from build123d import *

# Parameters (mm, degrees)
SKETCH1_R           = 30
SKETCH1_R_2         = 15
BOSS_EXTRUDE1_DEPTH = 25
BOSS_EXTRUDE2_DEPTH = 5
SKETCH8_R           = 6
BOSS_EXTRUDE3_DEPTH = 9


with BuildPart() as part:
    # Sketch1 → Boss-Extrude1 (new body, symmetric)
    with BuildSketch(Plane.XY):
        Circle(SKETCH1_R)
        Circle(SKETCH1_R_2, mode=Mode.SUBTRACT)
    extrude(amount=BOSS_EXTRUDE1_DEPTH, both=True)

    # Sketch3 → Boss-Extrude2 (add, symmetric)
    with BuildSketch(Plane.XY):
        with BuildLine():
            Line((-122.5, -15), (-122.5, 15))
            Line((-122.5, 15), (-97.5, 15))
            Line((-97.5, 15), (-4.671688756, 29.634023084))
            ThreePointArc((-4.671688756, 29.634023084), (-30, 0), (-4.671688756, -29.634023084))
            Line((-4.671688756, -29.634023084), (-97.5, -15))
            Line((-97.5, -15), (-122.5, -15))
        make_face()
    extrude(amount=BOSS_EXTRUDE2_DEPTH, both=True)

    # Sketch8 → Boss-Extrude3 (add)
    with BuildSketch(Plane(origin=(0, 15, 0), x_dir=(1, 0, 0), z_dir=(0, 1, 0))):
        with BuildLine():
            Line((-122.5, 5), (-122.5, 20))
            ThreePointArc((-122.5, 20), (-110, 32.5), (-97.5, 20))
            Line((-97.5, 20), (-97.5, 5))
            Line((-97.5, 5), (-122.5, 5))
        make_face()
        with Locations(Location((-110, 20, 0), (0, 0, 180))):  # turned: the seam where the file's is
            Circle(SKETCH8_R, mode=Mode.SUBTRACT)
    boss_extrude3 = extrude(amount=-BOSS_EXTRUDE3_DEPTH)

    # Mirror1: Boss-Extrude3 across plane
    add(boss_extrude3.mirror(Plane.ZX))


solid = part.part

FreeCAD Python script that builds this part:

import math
import FreeCAD as App
import Part
import Sketcher

V = App.Vector
Q = App.Units.Quantity

doc = App.newDocument("Part")
body = doc.addObject("PartDesign::Body", "Body")

# Sketch on XY plane
sketch1 = body.newObject("Sketcher::SketchObject", "Sketch")
sketch1.AttachmentSupport = (doc.getObject("XY_Plane"), [""])
sketch1.MapMode = "FlatFace"
sketch1.addGeometry([
    Part.Circle(V(0, 0, 0), V(0, 0, 1), 30),
    Part.Circle(V(0, 0, 0), V(0, 0, 1), 15),
], False)
sketch1.addConstraint([
    Sketcher.Constraint("Coincident", 0, 3, -1, 1),
    Sketcher.Constraint("Coincident", 1, 3, -1, 1),
    Sketcher.Constraint("Diameter", 0, Q("60 mm")),
    Sketcher.Constraint("Diameter", 1, Q("30 mm")),
])
pad1 = body.newObject("PartDesign::Pad", "Pad")
pad1.Profile = sketch1
pad1.Length = 50
pad1.Midplane = True

# Sketch on XY plane
sketch2 = body.newObject("Sketcher::SketchObject", "Sketch001")
sketch2.AttachmentSupport = (doc.getObject("XY_Plane"), [""])
sketch2.MapMode = "FlatFace"
sketch2.addGeometry([
    Part.LineSegment(V(-122.5, 15, 0), V(-122.5, -15, 0)),  # 0
    Part.LineSegment(V(-122.5, -15, 0), V(-97.5, -15, 0)),  # 1
    Part.LineSegment(V(-97.5, -15, 0), V(-4.671689, -29.634023, 0)),  # 2
    Part.ArcOfCircle(Part.Circle(V(0, 0, 0), V(0, 0, 1), 30), math.radians(98.958728), math.radians(261.041272)),  # 3
    Part.LineSegment(V(-4.671689, 29.634023, 0), V(-97.5, 15, 0)),  # 4
    Part.LineSegment(V(-97.5, 15, 0), V(-122.5, 15, 0)),  # 5
], False)
sketch2.addConstraint([
    Sketcher.Constraint("Coincident", 0, 2, 1, 1),
    Sketcher.Constraint("Coincident", 1, 2, 2, 1),
    Sketcher.Constraint("Tangent", 2, 2, 3, 2),
    Sketcher.Constraint("Tangent", 3, 1, 4, 1),
    Sketcher.Constraint("Coincident", 4, 2, 5, 1),
    Sketcher.Constraint("Coincident", 5, 2, 0, 1),
    Sketcher.Constraint("Vertical", 0),
    Sketcher.Constraint("Horizontal", 1),
    Sketcher.Constraint("Horizontal", 5),
    Sketcher.Constraint("Coincident", 3, 3, -1, 1),
    Sketcher.Constraint("Symmetric", 1, 2, 4, 2, -1),
    Sketcher.Constraint("Radius", 3, Q("30 mm")),
    Sketcher.Constraint("DistanceX", 1, 1, 1, 2, Q("25 mm")),
    Sketcher.Constraint("DistanceY", 0, 2, 0, 1, Q("30 mm")),
    Sketcher.Constraint("DistanceX", 0, 2, -1, 1, Q("122.5 mm")),
])
pad2 = body.newObject("PartDesign::Pad", "Pad001")
pad2.Profile = sketch2
pad2.Length = 10
pad2.Midplane = True

# Sketch on XZ plane
sketch3 = body.newObject("Sketcher::SketchObject", "Sketch002")
sketch3.AttachmentSupport = (doc.getObject("XZ_Plane"), [""])
sketch3.MapMode = "FlatFace"
sketch3.AttachmentOffset = App.Placement(V(0, 0, -15), App.Rotation())
sketch3.addGeometry([
    Part.LineSegment(V(-122.5, -20, 0), V(-122.5, -5, 0)),  # 0
    Part.LineSegment(V(-122.5, -5, 0), V(-97.5, -5, 0)),  # 1
    Part.LineSegment(V(-97.5, -5, 0), V(-97.5, -20, 0)),  # 2
    Part.ArcOfCircle(Part.Circle(V(-110, -20, 0), V(0, 0, 1), 12.5), math.radians(180), math.radians(360)),  # 3
    Part.Circle(V(-110, -20, 0), V(0, 0, 1), 6),  # 4
], False)
sketch3.addConstraint([
    Sketcher.Constraint("Coincident", 0, 2, 1, 1),
    Sketcher.Constraint("Coincident", 1, 2, 2, 1),
    Sketcher.Constraint("Tangent", 2, 2, 3, 2),
    Sketcher.Constraint("Tangent", 3, 1, 0, 1),
    Sketcher.Constraint("Vertical", 0),
    Sketcher.Constraint("Horizontal", 1),
    Sketcher.Constraint("Vertical", 2),
    Sketcher.Constraint("Coincident", 4, 3, 3, 3),
    Sketcher.Constraint("Diameter", 4, Q("12 mm")),
    Sketcher.Constraint("Radius", 3, Q("12.5 mm")),
    Sketcher.Constraint("DistanceY", 0, 1, 0, 2, Q("15 mm")),
    Sketcher.Constraint("DistanceX", 3, 3, -1, 1, Q("110 mm")),
    Sketcher.Constraint("DistanceY", 3, 3, -1, 1, Q("20 mm")),
])
pad3 = body.newObject("PartDesign::Pad", "Pad002")
pad3.Profile = sketch3
pad3.Length = 9
doc.recompute()

mirrored = body.newObject("PartDesign::Mirrored", "Mirrored")
mirrored.Originals = [pad3]
mirrored.MirrorPlane = (doc.getObject("XZ_Plane"), [""])
body.Tip = mirrored

doc.recompute()
